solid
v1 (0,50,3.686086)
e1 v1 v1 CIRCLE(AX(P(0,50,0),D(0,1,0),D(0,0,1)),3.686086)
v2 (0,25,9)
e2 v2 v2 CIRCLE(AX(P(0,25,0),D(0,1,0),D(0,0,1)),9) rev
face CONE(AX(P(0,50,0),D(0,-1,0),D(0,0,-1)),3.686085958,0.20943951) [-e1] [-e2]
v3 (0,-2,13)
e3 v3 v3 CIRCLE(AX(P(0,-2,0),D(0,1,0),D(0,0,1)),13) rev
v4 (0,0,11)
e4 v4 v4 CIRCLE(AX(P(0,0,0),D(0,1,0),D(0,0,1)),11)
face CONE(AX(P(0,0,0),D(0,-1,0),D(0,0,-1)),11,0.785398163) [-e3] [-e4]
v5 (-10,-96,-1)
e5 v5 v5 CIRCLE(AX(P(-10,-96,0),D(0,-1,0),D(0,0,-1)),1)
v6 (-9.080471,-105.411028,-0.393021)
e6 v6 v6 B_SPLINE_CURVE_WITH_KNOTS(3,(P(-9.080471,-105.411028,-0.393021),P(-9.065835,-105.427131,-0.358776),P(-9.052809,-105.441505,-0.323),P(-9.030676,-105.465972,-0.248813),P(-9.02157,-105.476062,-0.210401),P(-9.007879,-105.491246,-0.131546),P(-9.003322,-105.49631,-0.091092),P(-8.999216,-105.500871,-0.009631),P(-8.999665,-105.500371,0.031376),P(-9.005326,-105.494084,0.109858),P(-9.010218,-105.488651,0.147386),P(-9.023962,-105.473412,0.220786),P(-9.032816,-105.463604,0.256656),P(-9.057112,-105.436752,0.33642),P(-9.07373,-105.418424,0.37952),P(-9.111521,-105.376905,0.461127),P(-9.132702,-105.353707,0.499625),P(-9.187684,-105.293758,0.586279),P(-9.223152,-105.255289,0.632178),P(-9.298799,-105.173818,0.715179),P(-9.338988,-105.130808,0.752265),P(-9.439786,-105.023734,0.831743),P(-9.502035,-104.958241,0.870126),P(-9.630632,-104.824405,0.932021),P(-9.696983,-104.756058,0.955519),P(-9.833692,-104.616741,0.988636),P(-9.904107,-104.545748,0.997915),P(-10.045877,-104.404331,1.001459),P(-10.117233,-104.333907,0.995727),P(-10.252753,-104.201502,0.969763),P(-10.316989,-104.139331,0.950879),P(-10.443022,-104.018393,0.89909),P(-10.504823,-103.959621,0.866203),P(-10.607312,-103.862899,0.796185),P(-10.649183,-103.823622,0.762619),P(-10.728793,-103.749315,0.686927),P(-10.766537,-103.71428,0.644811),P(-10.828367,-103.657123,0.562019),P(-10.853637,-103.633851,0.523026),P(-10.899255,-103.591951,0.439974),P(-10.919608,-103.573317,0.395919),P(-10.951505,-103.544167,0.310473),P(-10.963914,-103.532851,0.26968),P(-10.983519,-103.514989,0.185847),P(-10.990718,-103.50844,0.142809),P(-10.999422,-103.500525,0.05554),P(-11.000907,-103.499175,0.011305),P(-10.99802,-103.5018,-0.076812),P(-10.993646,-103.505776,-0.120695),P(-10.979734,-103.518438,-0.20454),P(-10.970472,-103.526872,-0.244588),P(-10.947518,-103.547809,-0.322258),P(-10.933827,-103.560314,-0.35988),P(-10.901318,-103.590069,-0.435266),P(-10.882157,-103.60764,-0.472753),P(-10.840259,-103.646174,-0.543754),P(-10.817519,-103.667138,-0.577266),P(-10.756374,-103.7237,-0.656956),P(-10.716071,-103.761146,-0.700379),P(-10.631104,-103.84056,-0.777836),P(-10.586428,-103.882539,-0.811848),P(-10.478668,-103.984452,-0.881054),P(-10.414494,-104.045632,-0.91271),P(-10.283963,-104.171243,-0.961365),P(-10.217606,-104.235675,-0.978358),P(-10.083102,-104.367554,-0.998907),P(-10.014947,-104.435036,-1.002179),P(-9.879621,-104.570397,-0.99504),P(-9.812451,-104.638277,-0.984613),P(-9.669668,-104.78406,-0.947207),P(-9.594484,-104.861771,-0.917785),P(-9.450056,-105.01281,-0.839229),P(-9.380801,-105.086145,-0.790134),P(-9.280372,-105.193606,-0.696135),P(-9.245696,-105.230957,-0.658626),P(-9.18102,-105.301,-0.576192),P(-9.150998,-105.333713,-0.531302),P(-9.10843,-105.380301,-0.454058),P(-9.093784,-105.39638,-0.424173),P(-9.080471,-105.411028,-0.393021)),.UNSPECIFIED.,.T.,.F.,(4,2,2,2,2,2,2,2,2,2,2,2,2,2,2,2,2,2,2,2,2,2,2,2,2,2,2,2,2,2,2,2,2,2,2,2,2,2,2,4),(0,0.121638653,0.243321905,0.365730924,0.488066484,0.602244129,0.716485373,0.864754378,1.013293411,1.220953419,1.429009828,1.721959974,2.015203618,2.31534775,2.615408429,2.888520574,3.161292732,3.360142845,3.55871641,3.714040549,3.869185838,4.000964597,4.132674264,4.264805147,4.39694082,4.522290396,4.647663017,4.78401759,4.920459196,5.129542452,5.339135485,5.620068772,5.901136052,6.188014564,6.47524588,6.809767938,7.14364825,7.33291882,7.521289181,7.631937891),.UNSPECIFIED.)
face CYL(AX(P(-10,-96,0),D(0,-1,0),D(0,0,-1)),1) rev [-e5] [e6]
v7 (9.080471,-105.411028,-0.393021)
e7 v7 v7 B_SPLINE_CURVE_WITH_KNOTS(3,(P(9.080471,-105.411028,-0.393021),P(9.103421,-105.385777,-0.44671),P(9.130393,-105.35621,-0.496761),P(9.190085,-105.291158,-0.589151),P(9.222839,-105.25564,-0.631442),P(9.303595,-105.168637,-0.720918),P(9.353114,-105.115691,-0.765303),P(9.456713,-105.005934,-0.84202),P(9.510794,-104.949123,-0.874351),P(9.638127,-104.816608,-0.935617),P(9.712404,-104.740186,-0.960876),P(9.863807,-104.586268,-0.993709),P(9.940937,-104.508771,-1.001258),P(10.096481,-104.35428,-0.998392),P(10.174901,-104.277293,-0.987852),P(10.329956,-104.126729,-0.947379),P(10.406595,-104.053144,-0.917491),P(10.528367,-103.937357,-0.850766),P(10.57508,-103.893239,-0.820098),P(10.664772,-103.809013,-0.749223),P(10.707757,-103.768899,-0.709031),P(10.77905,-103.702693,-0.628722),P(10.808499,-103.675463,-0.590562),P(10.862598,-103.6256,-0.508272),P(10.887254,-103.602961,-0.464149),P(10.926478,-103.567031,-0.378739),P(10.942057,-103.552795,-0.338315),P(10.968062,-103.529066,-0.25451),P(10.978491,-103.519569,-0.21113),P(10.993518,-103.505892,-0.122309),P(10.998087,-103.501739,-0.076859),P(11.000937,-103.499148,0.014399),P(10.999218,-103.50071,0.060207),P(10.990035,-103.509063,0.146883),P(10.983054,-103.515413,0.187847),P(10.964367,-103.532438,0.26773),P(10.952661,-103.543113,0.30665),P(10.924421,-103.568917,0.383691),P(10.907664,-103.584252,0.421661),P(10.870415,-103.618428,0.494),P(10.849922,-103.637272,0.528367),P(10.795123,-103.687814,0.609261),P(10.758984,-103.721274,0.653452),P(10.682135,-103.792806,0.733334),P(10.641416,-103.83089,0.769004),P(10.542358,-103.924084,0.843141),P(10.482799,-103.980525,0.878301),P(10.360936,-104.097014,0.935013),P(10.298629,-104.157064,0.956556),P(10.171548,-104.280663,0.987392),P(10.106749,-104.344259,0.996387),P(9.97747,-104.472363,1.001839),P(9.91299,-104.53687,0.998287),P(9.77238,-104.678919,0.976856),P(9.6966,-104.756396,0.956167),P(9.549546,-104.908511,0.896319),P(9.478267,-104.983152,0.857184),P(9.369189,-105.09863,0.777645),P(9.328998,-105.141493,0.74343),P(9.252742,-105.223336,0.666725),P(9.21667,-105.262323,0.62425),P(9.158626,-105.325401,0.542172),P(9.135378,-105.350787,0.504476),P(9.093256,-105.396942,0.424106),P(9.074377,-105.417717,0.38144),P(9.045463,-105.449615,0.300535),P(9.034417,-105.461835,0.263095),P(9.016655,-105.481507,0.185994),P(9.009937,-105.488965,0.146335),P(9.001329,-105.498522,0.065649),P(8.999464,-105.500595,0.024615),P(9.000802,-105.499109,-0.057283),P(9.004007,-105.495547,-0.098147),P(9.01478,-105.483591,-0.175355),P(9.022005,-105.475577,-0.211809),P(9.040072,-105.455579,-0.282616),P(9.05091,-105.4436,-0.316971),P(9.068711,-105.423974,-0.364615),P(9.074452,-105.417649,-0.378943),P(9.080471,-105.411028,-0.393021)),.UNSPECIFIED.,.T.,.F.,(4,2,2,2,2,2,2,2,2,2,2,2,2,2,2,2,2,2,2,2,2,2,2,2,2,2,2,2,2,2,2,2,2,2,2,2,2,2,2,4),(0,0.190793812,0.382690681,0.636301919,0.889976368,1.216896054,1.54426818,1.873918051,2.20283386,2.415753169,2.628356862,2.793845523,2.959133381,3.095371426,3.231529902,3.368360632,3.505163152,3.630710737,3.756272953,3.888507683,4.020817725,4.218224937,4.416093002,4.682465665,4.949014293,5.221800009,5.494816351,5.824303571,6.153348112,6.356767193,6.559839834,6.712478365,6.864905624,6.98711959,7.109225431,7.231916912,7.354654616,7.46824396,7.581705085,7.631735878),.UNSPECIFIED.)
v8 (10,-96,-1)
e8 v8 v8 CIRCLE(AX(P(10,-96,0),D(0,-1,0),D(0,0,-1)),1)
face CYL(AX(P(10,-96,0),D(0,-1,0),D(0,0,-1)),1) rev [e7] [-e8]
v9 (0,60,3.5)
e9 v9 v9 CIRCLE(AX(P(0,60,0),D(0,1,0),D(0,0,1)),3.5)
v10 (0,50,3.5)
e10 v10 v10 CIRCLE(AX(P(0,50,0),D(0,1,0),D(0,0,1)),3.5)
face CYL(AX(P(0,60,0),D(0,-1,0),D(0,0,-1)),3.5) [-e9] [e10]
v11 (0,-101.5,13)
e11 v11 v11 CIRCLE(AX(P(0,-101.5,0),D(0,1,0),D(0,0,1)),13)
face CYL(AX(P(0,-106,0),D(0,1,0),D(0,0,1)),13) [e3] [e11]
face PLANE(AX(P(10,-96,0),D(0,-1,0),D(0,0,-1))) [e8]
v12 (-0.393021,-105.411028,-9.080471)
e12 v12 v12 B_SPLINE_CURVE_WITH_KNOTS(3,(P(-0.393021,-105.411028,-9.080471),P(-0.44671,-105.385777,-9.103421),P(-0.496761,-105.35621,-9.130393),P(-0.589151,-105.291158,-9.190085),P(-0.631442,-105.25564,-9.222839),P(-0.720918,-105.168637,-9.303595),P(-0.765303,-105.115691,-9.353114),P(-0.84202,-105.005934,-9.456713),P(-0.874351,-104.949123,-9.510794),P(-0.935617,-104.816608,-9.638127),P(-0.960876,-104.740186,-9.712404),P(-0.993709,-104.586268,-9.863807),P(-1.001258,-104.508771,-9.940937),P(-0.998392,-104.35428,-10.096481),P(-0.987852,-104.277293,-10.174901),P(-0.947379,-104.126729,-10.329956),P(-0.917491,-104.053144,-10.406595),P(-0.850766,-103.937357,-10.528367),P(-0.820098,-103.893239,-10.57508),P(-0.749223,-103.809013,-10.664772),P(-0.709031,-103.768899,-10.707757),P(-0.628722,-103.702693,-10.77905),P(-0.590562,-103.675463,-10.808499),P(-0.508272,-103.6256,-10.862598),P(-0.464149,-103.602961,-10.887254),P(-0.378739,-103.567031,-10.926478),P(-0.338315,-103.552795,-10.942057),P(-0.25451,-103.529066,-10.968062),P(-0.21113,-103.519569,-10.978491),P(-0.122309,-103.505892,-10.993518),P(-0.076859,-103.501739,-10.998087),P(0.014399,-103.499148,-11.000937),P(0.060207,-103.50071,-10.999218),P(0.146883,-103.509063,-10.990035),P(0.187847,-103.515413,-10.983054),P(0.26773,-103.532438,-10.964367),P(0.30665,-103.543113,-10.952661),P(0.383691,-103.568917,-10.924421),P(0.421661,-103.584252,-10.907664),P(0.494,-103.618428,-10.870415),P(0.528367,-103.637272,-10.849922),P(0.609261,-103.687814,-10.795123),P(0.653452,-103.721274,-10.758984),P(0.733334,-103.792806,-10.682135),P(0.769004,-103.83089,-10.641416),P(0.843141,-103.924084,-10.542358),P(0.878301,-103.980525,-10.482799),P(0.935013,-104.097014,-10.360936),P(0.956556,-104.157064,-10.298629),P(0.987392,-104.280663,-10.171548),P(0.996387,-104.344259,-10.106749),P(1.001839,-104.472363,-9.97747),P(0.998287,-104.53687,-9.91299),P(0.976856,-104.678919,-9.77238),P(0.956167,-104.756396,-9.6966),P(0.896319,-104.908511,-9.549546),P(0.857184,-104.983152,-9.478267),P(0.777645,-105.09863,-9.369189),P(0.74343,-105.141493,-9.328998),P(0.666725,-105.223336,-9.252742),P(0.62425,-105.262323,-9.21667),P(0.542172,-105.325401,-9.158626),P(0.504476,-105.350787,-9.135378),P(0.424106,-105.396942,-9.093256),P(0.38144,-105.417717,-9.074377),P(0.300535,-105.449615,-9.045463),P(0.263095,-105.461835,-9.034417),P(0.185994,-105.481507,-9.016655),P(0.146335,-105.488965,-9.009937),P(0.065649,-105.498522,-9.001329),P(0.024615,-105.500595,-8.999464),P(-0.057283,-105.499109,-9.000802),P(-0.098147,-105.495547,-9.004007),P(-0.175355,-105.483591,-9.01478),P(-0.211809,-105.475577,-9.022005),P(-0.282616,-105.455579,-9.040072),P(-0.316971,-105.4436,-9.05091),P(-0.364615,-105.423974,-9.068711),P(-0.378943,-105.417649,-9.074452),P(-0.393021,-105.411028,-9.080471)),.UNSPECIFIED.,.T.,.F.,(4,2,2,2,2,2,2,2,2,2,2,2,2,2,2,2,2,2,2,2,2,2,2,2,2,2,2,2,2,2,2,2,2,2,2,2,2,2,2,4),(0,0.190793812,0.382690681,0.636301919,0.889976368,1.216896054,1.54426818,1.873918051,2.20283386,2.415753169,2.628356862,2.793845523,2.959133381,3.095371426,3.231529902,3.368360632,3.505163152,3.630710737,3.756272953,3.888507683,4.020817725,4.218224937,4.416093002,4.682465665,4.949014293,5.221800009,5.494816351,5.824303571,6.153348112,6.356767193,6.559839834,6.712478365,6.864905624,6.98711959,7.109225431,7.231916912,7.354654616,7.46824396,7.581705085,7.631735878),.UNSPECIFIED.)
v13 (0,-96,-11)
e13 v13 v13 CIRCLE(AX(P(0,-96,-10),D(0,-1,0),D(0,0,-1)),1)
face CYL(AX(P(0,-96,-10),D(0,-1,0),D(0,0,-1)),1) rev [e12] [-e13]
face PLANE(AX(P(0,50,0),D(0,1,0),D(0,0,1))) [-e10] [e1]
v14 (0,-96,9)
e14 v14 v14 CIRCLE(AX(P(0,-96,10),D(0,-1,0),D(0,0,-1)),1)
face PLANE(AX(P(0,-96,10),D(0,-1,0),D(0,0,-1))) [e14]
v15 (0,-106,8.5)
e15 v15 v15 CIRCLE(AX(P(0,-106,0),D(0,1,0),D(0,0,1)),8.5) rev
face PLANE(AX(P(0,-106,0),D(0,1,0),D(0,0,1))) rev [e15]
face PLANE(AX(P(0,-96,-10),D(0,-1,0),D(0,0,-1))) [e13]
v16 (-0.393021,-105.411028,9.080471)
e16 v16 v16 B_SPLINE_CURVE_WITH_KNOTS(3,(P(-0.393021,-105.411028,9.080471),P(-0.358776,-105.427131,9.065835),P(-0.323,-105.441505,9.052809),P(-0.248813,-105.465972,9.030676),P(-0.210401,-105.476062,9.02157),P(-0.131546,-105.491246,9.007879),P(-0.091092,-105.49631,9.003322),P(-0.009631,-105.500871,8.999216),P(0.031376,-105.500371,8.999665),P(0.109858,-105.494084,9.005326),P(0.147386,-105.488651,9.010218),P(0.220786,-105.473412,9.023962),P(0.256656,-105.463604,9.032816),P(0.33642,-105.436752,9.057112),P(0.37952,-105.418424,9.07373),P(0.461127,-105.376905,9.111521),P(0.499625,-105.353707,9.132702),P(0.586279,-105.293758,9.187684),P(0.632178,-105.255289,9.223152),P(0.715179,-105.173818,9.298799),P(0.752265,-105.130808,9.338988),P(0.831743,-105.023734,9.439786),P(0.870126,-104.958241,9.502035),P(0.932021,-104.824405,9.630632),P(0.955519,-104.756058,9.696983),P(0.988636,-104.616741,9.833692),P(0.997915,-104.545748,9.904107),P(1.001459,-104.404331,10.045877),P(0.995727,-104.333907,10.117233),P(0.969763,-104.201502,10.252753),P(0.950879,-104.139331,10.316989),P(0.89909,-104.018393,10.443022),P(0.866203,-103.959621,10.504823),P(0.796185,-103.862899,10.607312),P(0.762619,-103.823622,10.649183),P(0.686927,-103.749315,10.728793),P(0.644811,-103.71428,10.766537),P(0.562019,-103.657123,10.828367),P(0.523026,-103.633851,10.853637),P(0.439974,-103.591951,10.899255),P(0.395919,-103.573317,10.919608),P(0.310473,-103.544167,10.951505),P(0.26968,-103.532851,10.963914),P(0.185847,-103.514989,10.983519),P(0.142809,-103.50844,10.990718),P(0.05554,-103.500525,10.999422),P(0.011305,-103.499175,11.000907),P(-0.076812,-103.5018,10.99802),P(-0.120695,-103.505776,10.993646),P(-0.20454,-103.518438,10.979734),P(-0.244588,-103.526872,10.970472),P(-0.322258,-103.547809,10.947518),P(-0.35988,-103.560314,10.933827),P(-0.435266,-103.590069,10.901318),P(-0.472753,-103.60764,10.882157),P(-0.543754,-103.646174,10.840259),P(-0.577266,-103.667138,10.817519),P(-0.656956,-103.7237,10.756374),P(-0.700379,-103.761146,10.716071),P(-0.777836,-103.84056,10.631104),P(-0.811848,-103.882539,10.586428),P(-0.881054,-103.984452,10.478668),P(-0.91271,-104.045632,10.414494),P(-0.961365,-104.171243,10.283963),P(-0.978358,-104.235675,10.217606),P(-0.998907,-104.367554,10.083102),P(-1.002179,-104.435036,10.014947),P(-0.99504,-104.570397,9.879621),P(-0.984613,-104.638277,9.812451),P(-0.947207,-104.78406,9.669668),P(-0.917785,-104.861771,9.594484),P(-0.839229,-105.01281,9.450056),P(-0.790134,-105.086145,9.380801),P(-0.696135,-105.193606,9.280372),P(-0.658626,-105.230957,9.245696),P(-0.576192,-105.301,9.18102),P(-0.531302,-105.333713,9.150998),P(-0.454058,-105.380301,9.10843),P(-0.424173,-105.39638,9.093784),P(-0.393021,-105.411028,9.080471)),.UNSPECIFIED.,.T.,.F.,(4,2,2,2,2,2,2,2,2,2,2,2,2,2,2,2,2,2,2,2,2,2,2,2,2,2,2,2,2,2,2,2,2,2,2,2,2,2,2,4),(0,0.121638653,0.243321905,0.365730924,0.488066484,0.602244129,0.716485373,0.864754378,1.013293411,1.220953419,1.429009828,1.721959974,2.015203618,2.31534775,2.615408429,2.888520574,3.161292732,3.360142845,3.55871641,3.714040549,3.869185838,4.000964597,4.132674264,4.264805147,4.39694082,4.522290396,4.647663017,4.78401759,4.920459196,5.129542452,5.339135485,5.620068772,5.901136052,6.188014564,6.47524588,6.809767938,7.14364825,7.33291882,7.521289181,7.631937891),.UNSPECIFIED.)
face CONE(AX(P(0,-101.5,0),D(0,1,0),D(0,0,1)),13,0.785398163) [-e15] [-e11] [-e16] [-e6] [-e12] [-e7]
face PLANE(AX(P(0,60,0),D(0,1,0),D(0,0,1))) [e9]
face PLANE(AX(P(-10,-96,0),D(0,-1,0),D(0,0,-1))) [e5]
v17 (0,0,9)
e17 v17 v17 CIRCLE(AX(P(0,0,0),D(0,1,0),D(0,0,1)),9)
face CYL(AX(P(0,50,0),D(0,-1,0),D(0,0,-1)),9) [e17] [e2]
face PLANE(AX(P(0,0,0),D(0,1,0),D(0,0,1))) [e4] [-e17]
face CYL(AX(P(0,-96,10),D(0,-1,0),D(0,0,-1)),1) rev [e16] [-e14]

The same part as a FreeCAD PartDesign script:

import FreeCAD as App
import Part
import Sketcher
from FreeCAD import Vector
Q = App.Units.Quantity


def edges_at(feature, points):
    """Names of the edges that pass closest to the given points."""
    edges = feature.Shape.Edges
    near = lambda p: min(range(len(edges)), key=lambda i: edges[i].distToShape(Part.Vertex(*p))[0])
    return sorted({f"Edge{near(p) + 1}" for p in points})

doc = App.newDocument("Part")
body = doc.addObject("PartDesign::Body", "Body")

# Sketch on XZ plane
sketch1 = body.newObject("Sketcher::SketchObject", "Sketch")
sketch1.AttachmentSupport = (doc.getObject("XZ_Plane"), [""])
sketch1.MapMode = "FlatFace"
sketch1.addGeometry(Part.Circle(Vector(0, 0, 0), Vector(0, 0, 1), 9), False)
sketch1.addConstraint(Sketcher.Constraint("Coincident", 0, 3, -1, 1))
sketch1.addConstraint(Sketcher.Constraint("Diameter", 0, Q("18 mm")))
pad1 = body.newObject("PartDesign::Pad", "Pad")
pad1.Profile = sketch1
pad1.Length = 50
pad1.Reversed = True

# Sketch on XZ plane
sketch2 = body.newObject("Sketcher::SketchObject", "Sketch001")
sketch2.AttachmentSupport = (doc.getObject("XZ_Plane"), [""])
sketch2.MapMode = "FlatFace"
sketch2.addGeometry(Part.Circle(Vector(0, 0, 0), Vector(0, 0, 1), 13), False)
sketch2.addConstraint(Sketcher.Constraint("Coincident", 0, 3, -1, 1))
sketch2.addConstraint(Sketcher.Constraint("Diameter", 0, Q("26 mm")))
pad2 = body.newObject("PartDesign::Pad", "Pad001")
pad2.Profile = sketch2
pad2.Length = 106

# Sketch on XZ plane
sketch3 = body.newObject("Sketcher::SketchObject", "Sketch002")
sketch3.AttachmentSupport = (doc.getObject("XZ_Plane"), [""])
sketch3.MapMode = "FlatFace"
sketch3.AttachmentOffset = App.Placement(Vector(0, 0, -50), App.Rotation())
sketch3.addGeometry(Part.Circle(Vector(0, 0, 0), Vector(0, 0, 1), 3.5), False)
sketch3.addConstraint(Sketcher.Constraint("Coincident", 0, 3, -1, 1))
sketch3.addConstraint(Sketcher.Constraint("Diameter", 0, Q("7 mm")))
pad3 = body.newObject("PartDesign::Pad", "Pad002")
pad3.Profile = sketch3
pad3.Length = 10
pad3.Reversed = True
doc.recompute()

chamfer = body.newObject("PartDesign::Chamfer", "Chamfer")
chamfer.Base = (pad3, edges_at(pad3, [(-13, -106, 0)]))
chamfer.Size = 4.5
doc.recompute()

chamfer2 = body.newObject("PartDesign::Chamfer", "Chamfer001")
chamfer2.Base = (chamfer, edges_at(chamfer, [(-9, 50, 0)]))
chamfer2.ChamferType = "Two distances"
chamfer2.Size = 25
chamfer2.Size2 = 5.313914

# Sketch on XZ plane
sketch4 = body.newObject("Sketcher::SketchObject", "Sketch003")
sketch4.AttachmentSupport = (doc.getObject("XZ_Plane"), [""])
sketch4.MapMode = "FlatFace"
sketch4.AttachmentOffset = App.Placement(Vector(0, 0, 106), App.Rotation())
sketch4.addGeometry(Part.Circle(Vector(0, 10, 0), Vector(0, 0, 1), 1), False)
sketch4.addGeometry(Part.Circle(Vector(10, 0, 0), Vector(0, 0, 1), 1), False)
sketch4.addGeometry(Part.Circle(Vector(0, -10, 0), Vector(0, 0, 1), 1), False)
sketch4.addGeometry(Part.Circle(Vector(-10, 0, 0), Vector(0, 0, 1), 1), False)
sketch4.addConstraint(Sketcher.Constraint("Equal", 0, 1))
sketch4.addConstraint(Sketcher.Constraint("Equal", 1, 2))
sketch4.addConstraint(Sketcher.Constraint("Equal", 2, 3))
sketch4.addConstraint(Sketcher.Constraint("Symmetric", 0, 3, 2, 3, -1, 1))
sketch4.addConstraint(Sketcher.Constraint("Symmetric", 1, 3, 3, 3, -1, 1))
sketch4.addConstraint(Sketcher.Constraint("PointOnObject", 0, 3, -2))
sketch4.addConstraint(Sketcher.Constraint("PointOnObject", 1, 3, -1))
sketch4.addConstraint(Sketcher.Constraint("Diameter", 0, Q("2 mm")))
sketch4.addConstraint(Sketcher.Constraint("DistanceY", -1, 1, 0, 3, Q("10 mm")))
sketch4.addConstraint(Sketcher.Constraint("DistanceX", -1, 1, 1, 3, Q("10 mm")))
pocket1 = body.newObject("PartDesign::Pocket", "Pocket")
pocket1.Profile = sketch4
pocket1.Length = 10
doc.recompute()

chamfer3 = body.newObject("PartDesign::Chamfer", "Chamfer002")
chamfer3.Base = (pocket1, edges_at(pocket1, [(-13, 0, 0)]))
chamfer3.Size = 2

doc.recompute()
